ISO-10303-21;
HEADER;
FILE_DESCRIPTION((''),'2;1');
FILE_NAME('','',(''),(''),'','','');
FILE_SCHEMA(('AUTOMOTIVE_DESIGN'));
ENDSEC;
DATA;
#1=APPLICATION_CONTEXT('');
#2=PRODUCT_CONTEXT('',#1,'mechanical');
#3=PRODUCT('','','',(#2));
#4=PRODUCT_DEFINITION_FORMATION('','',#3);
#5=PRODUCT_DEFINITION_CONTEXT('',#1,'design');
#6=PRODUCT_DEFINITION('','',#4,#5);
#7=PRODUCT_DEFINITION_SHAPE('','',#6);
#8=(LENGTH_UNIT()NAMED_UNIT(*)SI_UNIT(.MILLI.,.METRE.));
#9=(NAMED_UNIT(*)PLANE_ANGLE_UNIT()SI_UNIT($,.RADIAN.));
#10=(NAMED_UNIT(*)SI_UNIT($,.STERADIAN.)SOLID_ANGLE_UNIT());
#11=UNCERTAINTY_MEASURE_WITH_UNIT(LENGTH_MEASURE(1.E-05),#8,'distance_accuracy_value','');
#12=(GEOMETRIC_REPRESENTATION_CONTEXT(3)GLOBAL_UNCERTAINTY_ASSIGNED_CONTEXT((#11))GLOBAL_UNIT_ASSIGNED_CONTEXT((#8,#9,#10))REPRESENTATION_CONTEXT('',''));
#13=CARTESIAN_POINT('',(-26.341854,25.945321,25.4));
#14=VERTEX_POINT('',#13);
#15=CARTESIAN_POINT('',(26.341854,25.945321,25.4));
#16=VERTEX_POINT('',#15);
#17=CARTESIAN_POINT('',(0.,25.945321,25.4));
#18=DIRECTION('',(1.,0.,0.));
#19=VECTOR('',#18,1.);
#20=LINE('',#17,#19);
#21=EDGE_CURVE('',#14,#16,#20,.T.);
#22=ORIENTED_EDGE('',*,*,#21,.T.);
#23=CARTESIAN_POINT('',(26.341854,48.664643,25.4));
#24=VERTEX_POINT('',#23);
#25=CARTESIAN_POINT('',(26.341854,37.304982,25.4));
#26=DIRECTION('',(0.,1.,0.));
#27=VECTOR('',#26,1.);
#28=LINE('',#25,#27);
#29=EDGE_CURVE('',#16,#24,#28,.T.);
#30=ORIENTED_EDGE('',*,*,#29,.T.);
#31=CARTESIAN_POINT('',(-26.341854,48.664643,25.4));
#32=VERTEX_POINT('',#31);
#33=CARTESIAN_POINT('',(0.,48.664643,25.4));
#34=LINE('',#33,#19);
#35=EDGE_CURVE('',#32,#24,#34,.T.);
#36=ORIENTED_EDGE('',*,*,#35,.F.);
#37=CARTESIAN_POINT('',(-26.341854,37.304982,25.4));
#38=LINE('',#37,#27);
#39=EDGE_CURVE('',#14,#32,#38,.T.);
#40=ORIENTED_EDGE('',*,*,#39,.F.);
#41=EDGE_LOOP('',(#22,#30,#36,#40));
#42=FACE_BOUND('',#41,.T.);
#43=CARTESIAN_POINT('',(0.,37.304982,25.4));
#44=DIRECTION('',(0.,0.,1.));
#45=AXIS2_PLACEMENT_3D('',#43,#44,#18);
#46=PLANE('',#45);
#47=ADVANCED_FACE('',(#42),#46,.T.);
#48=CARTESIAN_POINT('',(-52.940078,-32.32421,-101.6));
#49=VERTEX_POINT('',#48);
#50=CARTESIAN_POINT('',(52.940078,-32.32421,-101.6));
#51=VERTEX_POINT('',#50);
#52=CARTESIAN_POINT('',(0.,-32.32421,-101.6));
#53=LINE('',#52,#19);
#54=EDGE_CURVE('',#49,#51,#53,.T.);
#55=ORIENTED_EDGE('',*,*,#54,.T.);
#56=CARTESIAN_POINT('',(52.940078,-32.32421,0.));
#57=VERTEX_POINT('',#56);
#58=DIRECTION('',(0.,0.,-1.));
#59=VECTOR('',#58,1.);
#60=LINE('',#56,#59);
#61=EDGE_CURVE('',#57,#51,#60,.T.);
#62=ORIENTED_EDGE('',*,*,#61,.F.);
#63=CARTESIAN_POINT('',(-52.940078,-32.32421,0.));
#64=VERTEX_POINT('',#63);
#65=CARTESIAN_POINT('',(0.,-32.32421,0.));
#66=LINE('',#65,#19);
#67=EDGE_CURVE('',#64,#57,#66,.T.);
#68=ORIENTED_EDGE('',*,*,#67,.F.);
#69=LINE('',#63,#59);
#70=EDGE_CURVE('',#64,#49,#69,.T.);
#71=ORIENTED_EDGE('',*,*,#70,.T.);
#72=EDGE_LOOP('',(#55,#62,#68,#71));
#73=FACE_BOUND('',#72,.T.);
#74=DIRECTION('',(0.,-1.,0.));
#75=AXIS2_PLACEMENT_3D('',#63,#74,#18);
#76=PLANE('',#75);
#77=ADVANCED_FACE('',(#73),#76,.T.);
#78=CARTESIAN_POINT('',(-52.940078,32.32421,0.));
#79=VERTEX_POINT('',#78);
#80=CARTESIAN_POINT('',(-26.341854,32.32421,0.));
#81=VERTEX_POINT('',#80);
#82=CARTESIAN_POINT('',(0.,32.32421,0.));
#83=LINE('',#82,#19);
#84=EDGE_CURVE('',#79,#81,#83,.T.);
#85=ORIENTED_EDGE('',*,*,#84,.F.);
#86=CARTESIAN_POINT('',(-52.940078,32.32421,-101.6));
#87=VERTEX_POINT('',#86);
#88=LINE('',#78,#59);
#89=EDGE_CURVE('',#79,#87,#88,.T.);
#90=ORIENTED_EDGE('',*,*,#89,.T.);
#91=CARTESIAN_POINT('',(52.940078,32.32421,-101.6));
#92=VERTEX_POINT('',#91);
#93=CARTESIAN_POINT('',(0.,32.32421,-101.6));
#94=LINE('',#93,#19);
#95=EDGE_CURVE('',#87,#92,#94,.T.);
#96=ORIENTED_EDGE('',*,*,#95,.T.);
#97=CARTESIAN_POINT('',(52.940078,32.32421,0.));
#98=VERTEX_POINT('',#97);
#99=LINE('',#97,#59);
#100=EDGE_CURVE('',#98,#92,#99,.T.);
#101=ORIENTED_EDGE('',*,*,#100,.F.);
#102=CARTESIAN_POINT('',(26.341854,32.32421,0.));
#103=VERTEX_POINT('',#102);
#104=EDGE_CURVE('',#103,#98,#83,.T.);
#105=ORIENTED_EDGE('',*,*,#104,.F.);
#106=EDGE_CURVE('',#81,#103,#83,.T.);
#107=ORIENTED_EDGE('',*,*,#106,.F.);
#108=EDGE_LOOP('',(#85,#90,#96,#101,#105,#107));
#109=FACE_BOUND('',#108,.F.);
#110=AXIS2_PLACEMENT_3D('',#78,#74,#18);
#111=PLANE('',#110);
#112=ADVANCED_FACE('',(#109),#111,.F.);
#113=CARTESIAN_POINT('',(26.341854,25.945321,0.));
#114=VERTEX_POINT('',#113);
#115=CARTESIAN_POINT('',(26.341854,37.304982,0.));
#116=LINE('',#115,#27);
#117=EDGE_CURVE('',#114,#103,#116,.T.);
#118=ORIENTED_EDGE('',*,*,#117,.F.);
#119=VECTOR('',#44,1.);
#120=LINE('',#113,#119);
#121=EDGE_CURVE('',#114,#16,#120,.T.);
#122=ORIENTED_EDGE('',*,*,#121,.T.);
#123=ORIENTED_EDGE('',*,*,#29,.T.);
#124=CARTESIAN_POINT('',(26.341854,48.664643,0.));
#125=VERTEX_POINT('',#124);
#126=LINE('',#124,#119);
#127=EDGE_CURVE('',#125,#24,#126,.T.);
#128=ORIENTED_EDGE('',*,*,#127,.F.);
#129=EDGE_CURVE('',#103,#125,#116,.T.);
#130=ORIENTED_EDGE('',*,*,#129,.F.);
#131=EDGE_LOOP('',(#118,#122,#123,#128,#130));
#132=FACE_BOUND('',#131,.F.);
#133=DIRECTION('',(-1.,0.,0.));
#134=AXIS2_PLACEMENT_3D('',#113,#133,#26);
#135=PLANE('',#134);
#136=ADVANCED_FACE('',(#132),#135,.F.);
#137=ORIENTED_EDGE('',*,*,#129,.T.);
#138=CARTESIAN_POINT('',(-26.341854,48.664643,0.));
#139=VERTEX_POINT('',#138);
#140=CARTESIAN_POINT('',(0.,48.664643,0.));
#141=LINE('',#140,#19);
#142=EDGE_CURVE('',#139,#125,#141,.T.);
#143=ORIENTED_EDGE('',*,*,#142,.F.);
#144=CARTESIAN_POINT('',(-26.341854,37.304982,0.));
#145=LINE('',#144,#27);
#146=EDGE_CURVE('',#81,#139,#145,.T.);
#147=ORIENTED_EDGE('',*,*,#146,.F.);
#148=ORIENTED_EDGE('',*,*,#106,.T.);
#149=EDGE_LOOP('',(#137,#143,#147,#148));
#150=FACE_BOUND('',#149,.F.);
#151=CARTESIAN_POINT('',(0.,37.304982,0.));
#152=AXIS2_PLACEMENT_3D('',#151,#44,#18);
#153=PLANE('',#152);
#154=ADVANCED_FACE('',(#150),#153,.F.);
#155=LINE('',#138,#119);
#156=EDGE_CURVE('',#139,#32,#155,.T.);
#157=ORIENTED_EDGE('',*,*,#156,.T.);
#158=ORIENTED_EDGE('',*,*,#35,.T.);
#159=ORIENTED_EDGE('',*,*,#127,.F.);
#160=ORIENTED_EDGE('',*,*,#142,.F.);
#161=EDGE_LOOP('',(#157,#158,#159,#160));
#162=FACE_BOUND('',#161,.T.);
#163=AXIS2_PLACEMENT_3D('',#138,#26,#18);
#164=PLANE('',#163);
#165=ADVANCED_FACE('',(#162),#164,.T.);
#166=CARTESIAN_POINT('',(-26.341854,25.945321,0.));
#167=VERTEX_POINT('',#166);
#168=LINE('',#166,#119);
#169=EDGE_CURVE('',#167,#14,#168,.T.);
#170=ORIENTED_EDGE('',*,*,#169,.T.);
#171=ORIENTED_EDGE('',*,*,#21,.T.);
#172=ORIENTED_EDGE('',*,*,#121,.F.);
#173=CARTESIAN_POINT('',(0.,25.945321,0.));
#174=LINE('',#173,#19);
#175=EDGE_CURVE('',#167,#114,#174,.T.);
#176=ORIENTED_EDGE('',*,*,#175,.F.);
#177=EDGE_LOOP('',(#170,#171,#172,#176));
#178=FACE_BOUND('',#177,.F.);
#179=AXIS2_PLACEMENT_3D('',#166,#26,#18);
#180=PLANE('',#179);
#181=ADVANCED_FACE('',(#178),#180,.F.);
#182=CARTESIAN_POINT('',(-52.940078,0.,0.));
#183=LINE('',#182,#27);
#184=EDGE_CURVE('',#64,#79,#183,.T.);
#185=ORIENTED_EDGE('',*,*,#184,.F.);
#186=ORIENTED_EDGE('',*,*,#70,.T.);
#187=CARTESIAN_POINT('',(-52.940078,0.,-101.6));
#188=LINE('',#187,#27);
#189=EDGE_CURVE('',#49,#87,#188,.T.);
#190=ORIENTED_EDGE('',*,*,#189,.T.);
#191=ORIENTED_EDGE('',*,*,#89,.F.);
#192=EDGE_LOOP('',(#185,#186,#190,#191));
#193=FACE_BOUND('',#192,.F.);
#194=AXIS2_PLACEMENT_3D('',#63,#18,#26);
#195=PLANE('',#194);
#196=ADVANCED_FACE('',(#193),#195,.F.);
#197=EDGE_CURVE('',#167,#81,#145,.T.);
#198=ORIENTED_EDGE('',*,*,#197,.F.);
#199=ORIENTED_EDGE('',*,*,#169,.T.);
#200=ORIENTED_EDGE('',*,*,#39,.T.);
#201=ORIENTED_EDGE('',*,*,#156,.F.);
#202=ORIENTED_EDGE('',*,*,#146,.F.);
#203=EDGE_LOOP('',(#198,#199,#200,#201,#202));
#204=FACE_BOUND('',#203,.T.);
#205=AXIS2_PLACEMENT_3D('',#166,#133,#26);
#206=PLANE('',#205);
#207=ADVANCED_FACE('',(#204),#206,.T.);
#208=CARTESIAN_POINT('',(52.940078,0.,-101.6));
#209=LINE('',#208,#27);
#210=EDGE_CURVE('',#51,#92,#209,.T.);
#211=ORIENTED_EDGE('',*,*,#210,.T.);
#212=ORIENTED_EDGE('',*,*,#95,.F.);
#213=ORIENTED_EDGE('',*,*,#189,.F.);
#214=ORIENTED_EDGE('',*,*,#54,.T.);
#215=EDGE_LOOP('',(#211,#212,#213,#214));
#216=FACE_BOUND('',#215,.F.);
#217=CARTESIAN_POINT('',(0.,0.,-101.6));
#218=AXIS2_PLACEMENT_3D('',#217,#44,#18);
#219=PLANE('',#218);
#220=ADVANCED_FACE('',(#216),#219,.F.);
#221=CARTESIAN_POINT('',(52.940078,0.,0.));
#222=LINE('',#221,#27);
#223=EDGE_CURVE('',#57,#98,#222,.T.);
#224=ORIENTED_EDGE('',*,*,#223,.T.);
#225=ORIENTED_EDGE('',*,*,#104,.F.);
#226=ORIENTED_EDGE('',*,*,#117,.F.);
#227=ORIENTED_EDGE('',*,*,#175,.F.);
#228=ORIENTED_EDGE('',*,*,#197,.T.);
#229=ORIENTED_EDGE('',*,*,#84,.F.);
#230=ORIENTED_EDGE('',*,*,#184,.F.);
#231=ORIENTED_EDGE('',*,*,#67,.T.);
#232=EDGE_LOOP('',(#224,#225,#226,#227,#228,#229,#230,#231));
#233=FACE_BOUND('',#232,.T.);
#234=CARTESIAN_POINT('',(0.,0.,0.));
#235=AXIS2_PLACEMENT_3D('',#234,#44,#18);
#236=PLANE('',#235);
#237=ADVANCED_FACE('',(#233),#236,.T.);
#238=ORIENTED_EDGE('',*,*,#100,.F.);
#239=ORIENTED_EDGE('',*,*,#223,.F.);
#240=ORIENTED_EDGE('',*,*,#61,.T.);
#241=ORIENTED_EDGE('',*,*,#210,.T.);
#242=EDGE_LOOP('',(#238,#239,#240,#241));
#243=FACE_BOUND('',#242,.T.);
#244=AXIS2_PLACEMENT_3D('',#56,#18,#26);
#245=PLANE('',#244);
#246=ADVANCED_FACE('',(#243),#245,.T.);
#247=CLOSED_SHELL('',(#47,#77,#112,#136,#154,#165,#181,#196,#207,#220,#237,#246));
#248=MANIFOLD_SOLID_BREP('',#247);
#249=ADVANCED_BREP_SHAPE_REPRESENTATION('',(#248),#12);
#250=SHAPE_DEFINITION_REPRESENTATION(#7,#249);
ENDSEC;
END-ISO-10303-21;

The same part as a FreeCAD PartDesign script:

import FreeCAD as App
import Part
import Sketcher
Q = App.Units.Quantity

doc = App.newDocument("Part")
body = doc.addObject("PartDesign::Body", "Body")

# Sketch on XY plane
sketch1 = body.newObject("Sketcher::SketchObject", "Sketch")
sketch1.AttachmentSupport = (doc.getObject("XY_Plane"), [""])
sketch1.MapMode = "FlatFace"
sketch1.addGeometry(Part.LineSegment(App.Vector(-53, 32, 0), App.Vector(-53, -32, 0)), False)
sketch1.addGeometry(Part.LineSegment(App.Vector(-53, -32, 0), App.Vector(53, -32, 0)), False)
sketch1.addGeometry(Part.LineSegment(App.Vector(53, -32, 0), App.Vector(53, 32, 0)), False)
sketch1.addGeometry(Part.LineSegment(App.Vector(53, 32, 0), App.Vector(-53, 32, 0)), False)
sketch1.addConstraint(Sketcher.Constraint("Coincident", 0, 2, 1, 1))
sketch1.addConstraint(Sketcher.Constraint("Coincident", 1, 2, 2, 1))
sketch1.addConstraint(Sketcher.Constraint("Coincident", 2, 2, 3, 1))
sketch1.addConstraint(Sketcher.Constraint("Coincident", 3, 2, 0, 1))
sketch1.addConstraint(Sketcher.Constraint("Vertical", 0))
sketch1.addConstraint(Sketcher.Constraint("Horizontal", 1))
sketch1.addConstraint(Sketcher.Constraint("Vertical", 2))
sketch1.addConstraint(Sketcher.Constraint("Horizontal", 3))
sketch1.addConstraint(Sketcher.Constraint("Symmetric", 0, 2, 2, 2, -1, 1))
sketch1.addConstraint(Sketcher.Constraint("DistanceY", 0, 2, 0, 1, Q("64.64842 mm")))
sketch1.addConstraint(Sketcher.Constraint("DistanceX", 1, 1, 1, 2, Q("105.880156 mm")))
pad1 = body.newObject("PartDesign::Pad", "Pad")
pad1.Profile = sketch1
pad1.Length = Q("4 in")
pad1.Reversed = True

# Sketch on XY plane
sketch2 = body.newObject("Sketcher::SketchObject", "Sketch001")
sketch2.AttachmentSupport = (doc.getObject("XY_Plane"), [""])
sketch2.MapMode = "FlatFace"
sketch2.addGeometry(Part.LineSegment(App.Vector(-26, 49, 0), App.Vector(-26, 26, 0)), False)
sketch2.addGeometry(Part.LineSegment(App.Vector(-26, 26, 0), App.Vector(26, 26, 0)), False)
sketch2.addGeometry(Part.LineSegment(App.Vector(26, 26, 0), App.Vector(26, 49, 0)), False)
sketch2.addGeometry(Part.LineSegment(App.Vector(26, 49, 0), App.Vector(-26, 49, 0)), False)
sketch2.addConstraint(Sketcher.Constraint("Coincident", 0, 2, 1, 1))
sketch2.addConstraint(Sketcher.Constraint("Coincident", 1, 2, 2, 1))
sketch2.addConstraint(Sketcher.Constraint("Coincident", 2, 2, 3, 1))
sketch2.addConstraint(Sketcher.Constraint("Coincident", 3, 2, 0, 1))
sketch2.addConstraint(Sketcher.Constraint("Vertical", 0))
sketch2.addConstraint(Sketcher.Constraint("Horizontal", 1))
sketch2.addConstraint(Sketcher.Constraint("Vertical", 2))
sketch2.addConstraint(Sketcher.Constraint("Horizontal", 3))
sketch2.addConstraint(Sketcher.Constraint("DistanceX", 1, 1, 1, 2, Q("52.683708 mm")))
sketch2.addConstraint(Sketcher.Constraint("DistanceY", 0, 2, 0, 1, Q("22.719323 mm")))
sketch2.addConstraint(Sketcher.Constraint("DistanceY", -1, 1, 0, 2, Q("25.945321 mm")))
sketch2.addConstraint(Sketcher.Constraint("DistanceX", 0, 2, -1, 1, Q("26.341854 mm")))
pad2 = body.newObject("PartDesign::Pad", "Pad001")
pad2.Profile = sketch2
pad2.Length = Q("1 in")

doc.recompute()
